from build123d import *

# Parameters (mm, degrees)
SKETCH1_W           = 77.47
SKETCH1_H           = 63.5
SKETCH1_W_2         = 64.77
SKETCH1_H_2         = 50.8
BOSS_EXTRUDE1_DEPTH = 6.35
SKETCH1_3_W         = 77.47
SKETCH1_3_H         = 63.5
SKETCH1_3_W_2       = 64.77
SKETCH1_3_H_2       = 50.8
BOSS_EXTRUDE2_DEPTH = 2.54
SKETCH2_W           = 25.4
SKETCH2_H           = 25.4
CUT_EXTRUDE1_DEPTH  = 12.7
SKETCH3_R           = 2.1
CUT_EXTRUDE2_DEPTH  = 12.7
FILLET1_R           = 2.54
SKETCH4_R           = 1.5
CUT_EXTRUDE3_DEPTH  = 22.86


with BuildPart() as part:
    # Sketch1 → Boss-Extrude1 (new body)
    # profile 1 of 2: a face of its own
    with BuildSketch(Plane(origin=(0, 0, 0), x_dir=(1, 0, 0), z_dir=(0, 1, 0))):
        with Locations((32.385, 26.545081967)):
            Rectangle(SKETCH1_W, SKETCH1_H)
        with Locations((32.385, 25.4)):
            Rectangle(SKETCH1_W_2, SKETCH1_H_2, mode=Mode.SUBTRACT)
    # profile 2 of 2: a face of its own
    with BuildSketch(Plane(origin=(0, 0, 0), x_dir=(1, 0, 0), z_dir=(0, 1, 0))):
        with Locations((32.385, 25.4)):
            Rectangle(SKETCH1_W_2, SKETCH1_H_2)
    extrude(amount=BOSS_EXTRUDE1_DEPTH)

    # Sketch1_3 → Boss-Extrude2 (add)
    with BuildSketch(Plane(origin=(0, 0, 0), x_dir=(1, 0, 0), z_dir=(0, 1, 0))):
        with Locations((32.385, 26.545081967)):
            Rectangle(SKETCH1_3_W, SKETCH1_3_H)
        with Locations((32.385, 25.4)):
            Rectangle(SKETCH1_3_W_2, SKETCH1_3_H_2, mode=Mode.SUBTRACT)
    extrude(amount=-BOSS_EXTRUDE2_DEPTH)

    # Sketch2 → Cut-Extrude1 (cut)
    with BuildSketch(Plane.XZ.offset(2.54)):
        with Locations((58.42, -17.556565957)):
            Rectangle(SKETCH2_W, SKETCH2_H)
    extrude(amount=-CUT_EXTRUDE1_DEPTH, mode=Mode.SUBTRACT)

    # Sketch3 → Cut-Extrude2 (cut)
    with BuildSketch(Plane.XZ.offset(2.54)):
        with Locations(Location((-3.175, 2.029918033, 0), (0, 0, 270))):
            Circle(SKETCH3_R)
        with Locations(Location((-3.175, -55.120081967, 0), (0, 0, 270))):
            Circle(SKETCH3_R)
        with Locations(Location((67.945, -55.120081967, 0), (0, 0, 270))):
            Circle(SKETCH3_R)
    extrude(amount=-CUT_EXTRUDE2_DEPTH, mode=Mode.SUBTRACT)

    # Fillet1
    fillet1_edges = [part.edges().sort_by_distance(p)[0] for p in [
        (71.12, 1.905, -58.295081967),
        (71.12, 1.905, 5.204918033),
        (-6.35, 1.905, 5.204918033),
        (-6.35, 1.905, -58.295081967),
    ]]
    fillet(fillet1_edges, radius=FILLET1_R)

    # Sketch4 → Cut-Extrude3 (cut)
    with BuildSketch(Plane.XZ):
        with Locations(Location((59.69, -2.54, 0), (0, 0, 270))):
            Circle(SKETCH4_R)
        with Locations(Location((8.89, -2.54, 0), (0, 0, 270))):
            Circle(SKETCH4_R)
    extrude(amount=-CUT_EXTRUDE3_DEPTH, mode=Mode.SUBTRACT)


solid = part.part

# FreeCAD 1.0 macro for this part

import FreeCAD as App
import Part
import Sketcher

V = App.Vector
Q = App.Units.Quantity


def edges_at(feature, points):
    """Names of the edges that pass closest to the given points."""
    edges = feature.Shape.Edges
    near = lambda p: min(range(len(edges)), key=lambda i: edges[i].distToShape(Part.Vertex(*p))[0])
    return sorted({f"Edge{near(p) + 1}" for p in points})


def add_polygon(sketch, points):
    """Adds a closed chain of lines whose ends are joined by coincident constraints."""
    first, n = sketch.GeometryCount, len(points)
    for a, b in zip(points, points[1:] + points[:1]):
        sketch.addGeometry(Part.LineSegment(App.Vector(*a, 0), App.Vector(*b, 0)), False)
    for i in range(n):
        sketch.addConstraint(Sketcher.Constraint("Coincident", first + i, 2, first + (i + 1) % n, 1))

doc = App.newDocument("Part")
body = doc.addObject("PartDesign::Body", "Body")

sketch1 = doc.addObject("Sketcher::SketchObject", "Sketch")
body.addObject(sketch1)
sketch1.AttachmentSupport = (doc.XZ_Plane, [""])
sketch1.MapMode = "FlatFace"
add_polygon(sketch1, [(-6.35, -58.295082), (-6.35, 5.204918), (71.12, 5.204918), (71.12, -58.295082)])
sketch1.addConstraint(Sketcher.Constraint("Vertical", 0))
sketch1.addConstraint(Sketcher.Constraint("Horizontal", 1))
sketch1.addConstraint(Sketcher.Constraint("Vertical", 2))
sketch1.addConstraint(Sketcher.Constraint("Horizontal", 3))
sketch1.addConstraint(Sketcher.Constraint("DistanceY", 0, 1, 0, 2, Q("2.5 in")))
sketch1.addConstraint(Sketcher.Constraint("DistanceX", 1, 1, 1, 2, Q("3.05 in")))
sketch1.addConstraint(Sketcher.Constraint("DistanceX", -1, 1, 1, 2, Q("2.8 in")))
sketch1.addConstraint(Sketcher.Constraint("DistanceY", -1, 1, 0, 2, 5.204918))
pad1 = doc.addObject("PartDesign::Pad", "Pad")
body.addObject(pad1)
pad1.Profile = sketch1
pad1.Length = Q("0.25 in")
pad1.Reversed = True

sketch2 = doc.addObject("Sketcher::SketchObject", "Sketch001")
body.addObject(sketch2)
sketch2.AttachmentSupport = (doc.XZ_Plane, [""])
sketch2.MapMode = "FlatFace"
add_polygon(sketch2, [(-6.35, -58.295082), (-6.35, 5.204918), (71.12, 5.204918), (71.12, -58.295082)])
add_polygon(sketch2, [(64.77, 0), (0, 0), (0, -50.8), (64.77, -50.8)])
sketch2.addConstraint(Sketcher.Constraint("Vertical", 0))
sketch2.addConstraint(Sketcher.Constraint("Horizontal", 1))
sketch2.addConstraint(Sketcher.Constraint("Vertical", 2))
sketch2.addConstraint(Sketcher.Constraint("Horizontal", 3))
sketch2.addConstraint(Sketcher.Constraint("Horizontal", 4))
sketch2.addConstraint(Sketcher.Constraint("Vertical", 5))
sketch2.addConstraint(Sketcher.Constraint("Horizontal", 6))
sketch2.addConstraint(Sketcher.Constraint("Vertical", 7))
sketch2.addConstraint(Sketcher.Constraint("Coincident", 4, 2, -1, 1))
sketch2.addConstraint(Sketcher.Constraint("DistanceY", 5, 2, 5, 1, Q("2 in")))
sketch2.addConstraint(Sketcher.Constraint("DistanceY", 0, 1, 0, 2, Q("2.5 in")))
sketch2.addConstraint(Sketcher.Constraint("DistanceX", 1, 1, 1, 2, Q("3.05 in")))
sketch2.addConstraint(Sketcher.Constraint("DistanceX", 4, 2, 4, 1, Q("2.55 in")))
sketch2.addConstraint(Sketcher.Constraint("DistanceX", -1, 1, 1, 2, Q("2.8 in")))
sketch2.addConstraint(Sketcher.Constraint("DistanceY", -1, 1, 0, 2, 5.204918))
pad2 = doc.addObject("PartDesign::Pad", "Pad001")
body.addObject(pad2)
pad2.Profile = sketch2
pad2.Length = Q("0.1 in")

sketch3 = doc.addObject("Sketcher::SketchObject", "Sketch002")
body.addObject(sketch3)
sketch3.AttachmentSupport = (doc.XZ_Plane, [""])
sketch3.MapMode = "FlatFace"
sketch3.AttachmentOffset = App.Placement(V(0, 0, 0.1 * 25.4), App.Rotation())
add_polygon(sketch3, [(45.72, -4.856566), (45.72, -30.256566), (71.12, -30.256566), (71.12, -4.856566)])
sketch3.addConstraint(Sketcher.Constraint("Vertical", 0))
sketch3.addConstraint(Sketcher.Constraint("Horizontal", 1))
sketch3.addConstraint(Sketcher.Constraint("Vertical", 2))
sketch3.addConstraint(Sketcher.Constraint("Horizontal", 3))
sketch3.addConstraint(Sketcher.Constraint("Equal", 3, 0))
sketch3.addConstraint(Sketcher.Constraint("DistanceX", 1, 1, 1, 2, Q("1 in")))
sketch3.addConstraint(Sketcher.Constraint("DistanceX", -1, 1, 0, 2, Q("1.8 in")))
sketch3.addConstraint(Sketcher.Constraint("DistanceY", 0, 2, -1, 1, 30.256566))
pocket1 = doc.addObject("PartDesign::Pocket", "Pocket")
body.addObject(pocket1)
pocket1.Profile = sketch3
pocket1.Length = Q("0.5 in")

sketch4 = doc.addObject("Sketcher::SketchObject", "Sketch003")
body.addObject(sketch4)
sketch4.AttachmentSupport = (doc.XZ_Plane, [""])
sketch4.MapMode = "FlatFace"
sketch4.AttachmentOffset = App.Placement(V(0, 0, 0.1 * 25.4), App.Rotation())
sketch4.addGeometry(Part.Circle(V(-3.175, 2.029918, 0), V(0, 0, 1), 2.1), False)
sketch4.addGeometry(Part.Circle(V(-3.175, -55.120082, 0), V(0, 0, 1), 2.1), False)
sketch4.addGeometry(Part.Circle(V(67.945, -55.120082, 0), V(0, 0, 1), 2.1), False)
sketch4.addConstraint(Sketcher.Constraint("Equal", 0, 1))
sketch4.addConstraint(Sketcher.Constraint("Equal", 1, 2))
sketch4.addConstraint(Sketcher.Constraint("Horizontal", 1, 3, 2, 3))
sketch4.addConstraint(Sketcher.Constraint("Vertical", 0, 3, 1, 3))
sketch4.addConstraint(Sketcher.Constraint("DistanceX", 1, 3, 2, 3, Q("2.8 in")))
sketch4.addConstraint(Sketcher.Constraint("Diameter", 0, 4.2))
sketch4.addConstraint(Sketcher.Constraint("DistanceY", 1, 3, 0, 3, Q("2.25 in")))
sketch4.addConstraint(Sketcher.Constraint("DistanceX", 0, 3, -1, 1, Q("0.125 in")))
sketch4.addConstraint(Sketcher.Constraint("DistanceY", -1, 1, 0, 3, 2.029918))
pocket2 = doc.addObject("PartDesign::Pocket", "Pocket001")
body.addObject(pocket2)
pocket2.Profile = sketch4
pocket2.Length = Q("0.5 in")
doc.recompute()

fillet = doc.addObject("PartDesign::Fillet", "Fillet")
body.addObject(fillet)
fillet.Base = (pocket2, edges_at(pocket2, [
    (71.12, 1.905, -58.295),
    (71.12, 1.905, 5.205),
    (-6.35, 1.905, 5.205),
    (-6.35, 1.905, -58.295),
]))
fillet.Radius = Q("0.1 in")

sketch5 = doc.addObject("Sketcher::SketchObject", "Sketch004")
body.addObject(sketch5)
sketch5.AttachmentSupport = (doc.XZ_Plane, [""])
sketch5.MapMode = "FlatFace"
sketch5.addGeometry(Part.Circle(V(59.69, -2.54, 0), V(0, 0, 1), 1.5), False)
sketch5.addGeometry(Part.Circle(V(8.89, -2.54, 0), V(0, 0, 1), 1.5), False)
sketch5.addConstraint(Sketcher.Constraint("Equal", 0, 1))
sketch5.addConstraint(Sketcher.Constraint("Horizontal", 0, 3, 1, 3))
sketch5.addConstraint(Sketcher.Constraint("DistanceX", 1, 3, 0, 3, Q("2 in")))
sketch5.addConstraint(Sketcher.Constraint("DistanceY", 0, 3, -1, 1, Q("0.1 in")))
sketch5.addConstraint(Sketcher.Constraint("Diameter", 0, 3.0))
sketch5.addConstraint(Sketcher.Constraint("DistanceX", -1, 1, 0, 3, Q("2.35 in")))
pocket3 = doc.addObject("PartDesign::Pocket", "Pocket002")
body.addObject(pocket3)
pocket3.Profile = sketch5
pocket3.Length = Q("0.9 in")

doc.recompute()
